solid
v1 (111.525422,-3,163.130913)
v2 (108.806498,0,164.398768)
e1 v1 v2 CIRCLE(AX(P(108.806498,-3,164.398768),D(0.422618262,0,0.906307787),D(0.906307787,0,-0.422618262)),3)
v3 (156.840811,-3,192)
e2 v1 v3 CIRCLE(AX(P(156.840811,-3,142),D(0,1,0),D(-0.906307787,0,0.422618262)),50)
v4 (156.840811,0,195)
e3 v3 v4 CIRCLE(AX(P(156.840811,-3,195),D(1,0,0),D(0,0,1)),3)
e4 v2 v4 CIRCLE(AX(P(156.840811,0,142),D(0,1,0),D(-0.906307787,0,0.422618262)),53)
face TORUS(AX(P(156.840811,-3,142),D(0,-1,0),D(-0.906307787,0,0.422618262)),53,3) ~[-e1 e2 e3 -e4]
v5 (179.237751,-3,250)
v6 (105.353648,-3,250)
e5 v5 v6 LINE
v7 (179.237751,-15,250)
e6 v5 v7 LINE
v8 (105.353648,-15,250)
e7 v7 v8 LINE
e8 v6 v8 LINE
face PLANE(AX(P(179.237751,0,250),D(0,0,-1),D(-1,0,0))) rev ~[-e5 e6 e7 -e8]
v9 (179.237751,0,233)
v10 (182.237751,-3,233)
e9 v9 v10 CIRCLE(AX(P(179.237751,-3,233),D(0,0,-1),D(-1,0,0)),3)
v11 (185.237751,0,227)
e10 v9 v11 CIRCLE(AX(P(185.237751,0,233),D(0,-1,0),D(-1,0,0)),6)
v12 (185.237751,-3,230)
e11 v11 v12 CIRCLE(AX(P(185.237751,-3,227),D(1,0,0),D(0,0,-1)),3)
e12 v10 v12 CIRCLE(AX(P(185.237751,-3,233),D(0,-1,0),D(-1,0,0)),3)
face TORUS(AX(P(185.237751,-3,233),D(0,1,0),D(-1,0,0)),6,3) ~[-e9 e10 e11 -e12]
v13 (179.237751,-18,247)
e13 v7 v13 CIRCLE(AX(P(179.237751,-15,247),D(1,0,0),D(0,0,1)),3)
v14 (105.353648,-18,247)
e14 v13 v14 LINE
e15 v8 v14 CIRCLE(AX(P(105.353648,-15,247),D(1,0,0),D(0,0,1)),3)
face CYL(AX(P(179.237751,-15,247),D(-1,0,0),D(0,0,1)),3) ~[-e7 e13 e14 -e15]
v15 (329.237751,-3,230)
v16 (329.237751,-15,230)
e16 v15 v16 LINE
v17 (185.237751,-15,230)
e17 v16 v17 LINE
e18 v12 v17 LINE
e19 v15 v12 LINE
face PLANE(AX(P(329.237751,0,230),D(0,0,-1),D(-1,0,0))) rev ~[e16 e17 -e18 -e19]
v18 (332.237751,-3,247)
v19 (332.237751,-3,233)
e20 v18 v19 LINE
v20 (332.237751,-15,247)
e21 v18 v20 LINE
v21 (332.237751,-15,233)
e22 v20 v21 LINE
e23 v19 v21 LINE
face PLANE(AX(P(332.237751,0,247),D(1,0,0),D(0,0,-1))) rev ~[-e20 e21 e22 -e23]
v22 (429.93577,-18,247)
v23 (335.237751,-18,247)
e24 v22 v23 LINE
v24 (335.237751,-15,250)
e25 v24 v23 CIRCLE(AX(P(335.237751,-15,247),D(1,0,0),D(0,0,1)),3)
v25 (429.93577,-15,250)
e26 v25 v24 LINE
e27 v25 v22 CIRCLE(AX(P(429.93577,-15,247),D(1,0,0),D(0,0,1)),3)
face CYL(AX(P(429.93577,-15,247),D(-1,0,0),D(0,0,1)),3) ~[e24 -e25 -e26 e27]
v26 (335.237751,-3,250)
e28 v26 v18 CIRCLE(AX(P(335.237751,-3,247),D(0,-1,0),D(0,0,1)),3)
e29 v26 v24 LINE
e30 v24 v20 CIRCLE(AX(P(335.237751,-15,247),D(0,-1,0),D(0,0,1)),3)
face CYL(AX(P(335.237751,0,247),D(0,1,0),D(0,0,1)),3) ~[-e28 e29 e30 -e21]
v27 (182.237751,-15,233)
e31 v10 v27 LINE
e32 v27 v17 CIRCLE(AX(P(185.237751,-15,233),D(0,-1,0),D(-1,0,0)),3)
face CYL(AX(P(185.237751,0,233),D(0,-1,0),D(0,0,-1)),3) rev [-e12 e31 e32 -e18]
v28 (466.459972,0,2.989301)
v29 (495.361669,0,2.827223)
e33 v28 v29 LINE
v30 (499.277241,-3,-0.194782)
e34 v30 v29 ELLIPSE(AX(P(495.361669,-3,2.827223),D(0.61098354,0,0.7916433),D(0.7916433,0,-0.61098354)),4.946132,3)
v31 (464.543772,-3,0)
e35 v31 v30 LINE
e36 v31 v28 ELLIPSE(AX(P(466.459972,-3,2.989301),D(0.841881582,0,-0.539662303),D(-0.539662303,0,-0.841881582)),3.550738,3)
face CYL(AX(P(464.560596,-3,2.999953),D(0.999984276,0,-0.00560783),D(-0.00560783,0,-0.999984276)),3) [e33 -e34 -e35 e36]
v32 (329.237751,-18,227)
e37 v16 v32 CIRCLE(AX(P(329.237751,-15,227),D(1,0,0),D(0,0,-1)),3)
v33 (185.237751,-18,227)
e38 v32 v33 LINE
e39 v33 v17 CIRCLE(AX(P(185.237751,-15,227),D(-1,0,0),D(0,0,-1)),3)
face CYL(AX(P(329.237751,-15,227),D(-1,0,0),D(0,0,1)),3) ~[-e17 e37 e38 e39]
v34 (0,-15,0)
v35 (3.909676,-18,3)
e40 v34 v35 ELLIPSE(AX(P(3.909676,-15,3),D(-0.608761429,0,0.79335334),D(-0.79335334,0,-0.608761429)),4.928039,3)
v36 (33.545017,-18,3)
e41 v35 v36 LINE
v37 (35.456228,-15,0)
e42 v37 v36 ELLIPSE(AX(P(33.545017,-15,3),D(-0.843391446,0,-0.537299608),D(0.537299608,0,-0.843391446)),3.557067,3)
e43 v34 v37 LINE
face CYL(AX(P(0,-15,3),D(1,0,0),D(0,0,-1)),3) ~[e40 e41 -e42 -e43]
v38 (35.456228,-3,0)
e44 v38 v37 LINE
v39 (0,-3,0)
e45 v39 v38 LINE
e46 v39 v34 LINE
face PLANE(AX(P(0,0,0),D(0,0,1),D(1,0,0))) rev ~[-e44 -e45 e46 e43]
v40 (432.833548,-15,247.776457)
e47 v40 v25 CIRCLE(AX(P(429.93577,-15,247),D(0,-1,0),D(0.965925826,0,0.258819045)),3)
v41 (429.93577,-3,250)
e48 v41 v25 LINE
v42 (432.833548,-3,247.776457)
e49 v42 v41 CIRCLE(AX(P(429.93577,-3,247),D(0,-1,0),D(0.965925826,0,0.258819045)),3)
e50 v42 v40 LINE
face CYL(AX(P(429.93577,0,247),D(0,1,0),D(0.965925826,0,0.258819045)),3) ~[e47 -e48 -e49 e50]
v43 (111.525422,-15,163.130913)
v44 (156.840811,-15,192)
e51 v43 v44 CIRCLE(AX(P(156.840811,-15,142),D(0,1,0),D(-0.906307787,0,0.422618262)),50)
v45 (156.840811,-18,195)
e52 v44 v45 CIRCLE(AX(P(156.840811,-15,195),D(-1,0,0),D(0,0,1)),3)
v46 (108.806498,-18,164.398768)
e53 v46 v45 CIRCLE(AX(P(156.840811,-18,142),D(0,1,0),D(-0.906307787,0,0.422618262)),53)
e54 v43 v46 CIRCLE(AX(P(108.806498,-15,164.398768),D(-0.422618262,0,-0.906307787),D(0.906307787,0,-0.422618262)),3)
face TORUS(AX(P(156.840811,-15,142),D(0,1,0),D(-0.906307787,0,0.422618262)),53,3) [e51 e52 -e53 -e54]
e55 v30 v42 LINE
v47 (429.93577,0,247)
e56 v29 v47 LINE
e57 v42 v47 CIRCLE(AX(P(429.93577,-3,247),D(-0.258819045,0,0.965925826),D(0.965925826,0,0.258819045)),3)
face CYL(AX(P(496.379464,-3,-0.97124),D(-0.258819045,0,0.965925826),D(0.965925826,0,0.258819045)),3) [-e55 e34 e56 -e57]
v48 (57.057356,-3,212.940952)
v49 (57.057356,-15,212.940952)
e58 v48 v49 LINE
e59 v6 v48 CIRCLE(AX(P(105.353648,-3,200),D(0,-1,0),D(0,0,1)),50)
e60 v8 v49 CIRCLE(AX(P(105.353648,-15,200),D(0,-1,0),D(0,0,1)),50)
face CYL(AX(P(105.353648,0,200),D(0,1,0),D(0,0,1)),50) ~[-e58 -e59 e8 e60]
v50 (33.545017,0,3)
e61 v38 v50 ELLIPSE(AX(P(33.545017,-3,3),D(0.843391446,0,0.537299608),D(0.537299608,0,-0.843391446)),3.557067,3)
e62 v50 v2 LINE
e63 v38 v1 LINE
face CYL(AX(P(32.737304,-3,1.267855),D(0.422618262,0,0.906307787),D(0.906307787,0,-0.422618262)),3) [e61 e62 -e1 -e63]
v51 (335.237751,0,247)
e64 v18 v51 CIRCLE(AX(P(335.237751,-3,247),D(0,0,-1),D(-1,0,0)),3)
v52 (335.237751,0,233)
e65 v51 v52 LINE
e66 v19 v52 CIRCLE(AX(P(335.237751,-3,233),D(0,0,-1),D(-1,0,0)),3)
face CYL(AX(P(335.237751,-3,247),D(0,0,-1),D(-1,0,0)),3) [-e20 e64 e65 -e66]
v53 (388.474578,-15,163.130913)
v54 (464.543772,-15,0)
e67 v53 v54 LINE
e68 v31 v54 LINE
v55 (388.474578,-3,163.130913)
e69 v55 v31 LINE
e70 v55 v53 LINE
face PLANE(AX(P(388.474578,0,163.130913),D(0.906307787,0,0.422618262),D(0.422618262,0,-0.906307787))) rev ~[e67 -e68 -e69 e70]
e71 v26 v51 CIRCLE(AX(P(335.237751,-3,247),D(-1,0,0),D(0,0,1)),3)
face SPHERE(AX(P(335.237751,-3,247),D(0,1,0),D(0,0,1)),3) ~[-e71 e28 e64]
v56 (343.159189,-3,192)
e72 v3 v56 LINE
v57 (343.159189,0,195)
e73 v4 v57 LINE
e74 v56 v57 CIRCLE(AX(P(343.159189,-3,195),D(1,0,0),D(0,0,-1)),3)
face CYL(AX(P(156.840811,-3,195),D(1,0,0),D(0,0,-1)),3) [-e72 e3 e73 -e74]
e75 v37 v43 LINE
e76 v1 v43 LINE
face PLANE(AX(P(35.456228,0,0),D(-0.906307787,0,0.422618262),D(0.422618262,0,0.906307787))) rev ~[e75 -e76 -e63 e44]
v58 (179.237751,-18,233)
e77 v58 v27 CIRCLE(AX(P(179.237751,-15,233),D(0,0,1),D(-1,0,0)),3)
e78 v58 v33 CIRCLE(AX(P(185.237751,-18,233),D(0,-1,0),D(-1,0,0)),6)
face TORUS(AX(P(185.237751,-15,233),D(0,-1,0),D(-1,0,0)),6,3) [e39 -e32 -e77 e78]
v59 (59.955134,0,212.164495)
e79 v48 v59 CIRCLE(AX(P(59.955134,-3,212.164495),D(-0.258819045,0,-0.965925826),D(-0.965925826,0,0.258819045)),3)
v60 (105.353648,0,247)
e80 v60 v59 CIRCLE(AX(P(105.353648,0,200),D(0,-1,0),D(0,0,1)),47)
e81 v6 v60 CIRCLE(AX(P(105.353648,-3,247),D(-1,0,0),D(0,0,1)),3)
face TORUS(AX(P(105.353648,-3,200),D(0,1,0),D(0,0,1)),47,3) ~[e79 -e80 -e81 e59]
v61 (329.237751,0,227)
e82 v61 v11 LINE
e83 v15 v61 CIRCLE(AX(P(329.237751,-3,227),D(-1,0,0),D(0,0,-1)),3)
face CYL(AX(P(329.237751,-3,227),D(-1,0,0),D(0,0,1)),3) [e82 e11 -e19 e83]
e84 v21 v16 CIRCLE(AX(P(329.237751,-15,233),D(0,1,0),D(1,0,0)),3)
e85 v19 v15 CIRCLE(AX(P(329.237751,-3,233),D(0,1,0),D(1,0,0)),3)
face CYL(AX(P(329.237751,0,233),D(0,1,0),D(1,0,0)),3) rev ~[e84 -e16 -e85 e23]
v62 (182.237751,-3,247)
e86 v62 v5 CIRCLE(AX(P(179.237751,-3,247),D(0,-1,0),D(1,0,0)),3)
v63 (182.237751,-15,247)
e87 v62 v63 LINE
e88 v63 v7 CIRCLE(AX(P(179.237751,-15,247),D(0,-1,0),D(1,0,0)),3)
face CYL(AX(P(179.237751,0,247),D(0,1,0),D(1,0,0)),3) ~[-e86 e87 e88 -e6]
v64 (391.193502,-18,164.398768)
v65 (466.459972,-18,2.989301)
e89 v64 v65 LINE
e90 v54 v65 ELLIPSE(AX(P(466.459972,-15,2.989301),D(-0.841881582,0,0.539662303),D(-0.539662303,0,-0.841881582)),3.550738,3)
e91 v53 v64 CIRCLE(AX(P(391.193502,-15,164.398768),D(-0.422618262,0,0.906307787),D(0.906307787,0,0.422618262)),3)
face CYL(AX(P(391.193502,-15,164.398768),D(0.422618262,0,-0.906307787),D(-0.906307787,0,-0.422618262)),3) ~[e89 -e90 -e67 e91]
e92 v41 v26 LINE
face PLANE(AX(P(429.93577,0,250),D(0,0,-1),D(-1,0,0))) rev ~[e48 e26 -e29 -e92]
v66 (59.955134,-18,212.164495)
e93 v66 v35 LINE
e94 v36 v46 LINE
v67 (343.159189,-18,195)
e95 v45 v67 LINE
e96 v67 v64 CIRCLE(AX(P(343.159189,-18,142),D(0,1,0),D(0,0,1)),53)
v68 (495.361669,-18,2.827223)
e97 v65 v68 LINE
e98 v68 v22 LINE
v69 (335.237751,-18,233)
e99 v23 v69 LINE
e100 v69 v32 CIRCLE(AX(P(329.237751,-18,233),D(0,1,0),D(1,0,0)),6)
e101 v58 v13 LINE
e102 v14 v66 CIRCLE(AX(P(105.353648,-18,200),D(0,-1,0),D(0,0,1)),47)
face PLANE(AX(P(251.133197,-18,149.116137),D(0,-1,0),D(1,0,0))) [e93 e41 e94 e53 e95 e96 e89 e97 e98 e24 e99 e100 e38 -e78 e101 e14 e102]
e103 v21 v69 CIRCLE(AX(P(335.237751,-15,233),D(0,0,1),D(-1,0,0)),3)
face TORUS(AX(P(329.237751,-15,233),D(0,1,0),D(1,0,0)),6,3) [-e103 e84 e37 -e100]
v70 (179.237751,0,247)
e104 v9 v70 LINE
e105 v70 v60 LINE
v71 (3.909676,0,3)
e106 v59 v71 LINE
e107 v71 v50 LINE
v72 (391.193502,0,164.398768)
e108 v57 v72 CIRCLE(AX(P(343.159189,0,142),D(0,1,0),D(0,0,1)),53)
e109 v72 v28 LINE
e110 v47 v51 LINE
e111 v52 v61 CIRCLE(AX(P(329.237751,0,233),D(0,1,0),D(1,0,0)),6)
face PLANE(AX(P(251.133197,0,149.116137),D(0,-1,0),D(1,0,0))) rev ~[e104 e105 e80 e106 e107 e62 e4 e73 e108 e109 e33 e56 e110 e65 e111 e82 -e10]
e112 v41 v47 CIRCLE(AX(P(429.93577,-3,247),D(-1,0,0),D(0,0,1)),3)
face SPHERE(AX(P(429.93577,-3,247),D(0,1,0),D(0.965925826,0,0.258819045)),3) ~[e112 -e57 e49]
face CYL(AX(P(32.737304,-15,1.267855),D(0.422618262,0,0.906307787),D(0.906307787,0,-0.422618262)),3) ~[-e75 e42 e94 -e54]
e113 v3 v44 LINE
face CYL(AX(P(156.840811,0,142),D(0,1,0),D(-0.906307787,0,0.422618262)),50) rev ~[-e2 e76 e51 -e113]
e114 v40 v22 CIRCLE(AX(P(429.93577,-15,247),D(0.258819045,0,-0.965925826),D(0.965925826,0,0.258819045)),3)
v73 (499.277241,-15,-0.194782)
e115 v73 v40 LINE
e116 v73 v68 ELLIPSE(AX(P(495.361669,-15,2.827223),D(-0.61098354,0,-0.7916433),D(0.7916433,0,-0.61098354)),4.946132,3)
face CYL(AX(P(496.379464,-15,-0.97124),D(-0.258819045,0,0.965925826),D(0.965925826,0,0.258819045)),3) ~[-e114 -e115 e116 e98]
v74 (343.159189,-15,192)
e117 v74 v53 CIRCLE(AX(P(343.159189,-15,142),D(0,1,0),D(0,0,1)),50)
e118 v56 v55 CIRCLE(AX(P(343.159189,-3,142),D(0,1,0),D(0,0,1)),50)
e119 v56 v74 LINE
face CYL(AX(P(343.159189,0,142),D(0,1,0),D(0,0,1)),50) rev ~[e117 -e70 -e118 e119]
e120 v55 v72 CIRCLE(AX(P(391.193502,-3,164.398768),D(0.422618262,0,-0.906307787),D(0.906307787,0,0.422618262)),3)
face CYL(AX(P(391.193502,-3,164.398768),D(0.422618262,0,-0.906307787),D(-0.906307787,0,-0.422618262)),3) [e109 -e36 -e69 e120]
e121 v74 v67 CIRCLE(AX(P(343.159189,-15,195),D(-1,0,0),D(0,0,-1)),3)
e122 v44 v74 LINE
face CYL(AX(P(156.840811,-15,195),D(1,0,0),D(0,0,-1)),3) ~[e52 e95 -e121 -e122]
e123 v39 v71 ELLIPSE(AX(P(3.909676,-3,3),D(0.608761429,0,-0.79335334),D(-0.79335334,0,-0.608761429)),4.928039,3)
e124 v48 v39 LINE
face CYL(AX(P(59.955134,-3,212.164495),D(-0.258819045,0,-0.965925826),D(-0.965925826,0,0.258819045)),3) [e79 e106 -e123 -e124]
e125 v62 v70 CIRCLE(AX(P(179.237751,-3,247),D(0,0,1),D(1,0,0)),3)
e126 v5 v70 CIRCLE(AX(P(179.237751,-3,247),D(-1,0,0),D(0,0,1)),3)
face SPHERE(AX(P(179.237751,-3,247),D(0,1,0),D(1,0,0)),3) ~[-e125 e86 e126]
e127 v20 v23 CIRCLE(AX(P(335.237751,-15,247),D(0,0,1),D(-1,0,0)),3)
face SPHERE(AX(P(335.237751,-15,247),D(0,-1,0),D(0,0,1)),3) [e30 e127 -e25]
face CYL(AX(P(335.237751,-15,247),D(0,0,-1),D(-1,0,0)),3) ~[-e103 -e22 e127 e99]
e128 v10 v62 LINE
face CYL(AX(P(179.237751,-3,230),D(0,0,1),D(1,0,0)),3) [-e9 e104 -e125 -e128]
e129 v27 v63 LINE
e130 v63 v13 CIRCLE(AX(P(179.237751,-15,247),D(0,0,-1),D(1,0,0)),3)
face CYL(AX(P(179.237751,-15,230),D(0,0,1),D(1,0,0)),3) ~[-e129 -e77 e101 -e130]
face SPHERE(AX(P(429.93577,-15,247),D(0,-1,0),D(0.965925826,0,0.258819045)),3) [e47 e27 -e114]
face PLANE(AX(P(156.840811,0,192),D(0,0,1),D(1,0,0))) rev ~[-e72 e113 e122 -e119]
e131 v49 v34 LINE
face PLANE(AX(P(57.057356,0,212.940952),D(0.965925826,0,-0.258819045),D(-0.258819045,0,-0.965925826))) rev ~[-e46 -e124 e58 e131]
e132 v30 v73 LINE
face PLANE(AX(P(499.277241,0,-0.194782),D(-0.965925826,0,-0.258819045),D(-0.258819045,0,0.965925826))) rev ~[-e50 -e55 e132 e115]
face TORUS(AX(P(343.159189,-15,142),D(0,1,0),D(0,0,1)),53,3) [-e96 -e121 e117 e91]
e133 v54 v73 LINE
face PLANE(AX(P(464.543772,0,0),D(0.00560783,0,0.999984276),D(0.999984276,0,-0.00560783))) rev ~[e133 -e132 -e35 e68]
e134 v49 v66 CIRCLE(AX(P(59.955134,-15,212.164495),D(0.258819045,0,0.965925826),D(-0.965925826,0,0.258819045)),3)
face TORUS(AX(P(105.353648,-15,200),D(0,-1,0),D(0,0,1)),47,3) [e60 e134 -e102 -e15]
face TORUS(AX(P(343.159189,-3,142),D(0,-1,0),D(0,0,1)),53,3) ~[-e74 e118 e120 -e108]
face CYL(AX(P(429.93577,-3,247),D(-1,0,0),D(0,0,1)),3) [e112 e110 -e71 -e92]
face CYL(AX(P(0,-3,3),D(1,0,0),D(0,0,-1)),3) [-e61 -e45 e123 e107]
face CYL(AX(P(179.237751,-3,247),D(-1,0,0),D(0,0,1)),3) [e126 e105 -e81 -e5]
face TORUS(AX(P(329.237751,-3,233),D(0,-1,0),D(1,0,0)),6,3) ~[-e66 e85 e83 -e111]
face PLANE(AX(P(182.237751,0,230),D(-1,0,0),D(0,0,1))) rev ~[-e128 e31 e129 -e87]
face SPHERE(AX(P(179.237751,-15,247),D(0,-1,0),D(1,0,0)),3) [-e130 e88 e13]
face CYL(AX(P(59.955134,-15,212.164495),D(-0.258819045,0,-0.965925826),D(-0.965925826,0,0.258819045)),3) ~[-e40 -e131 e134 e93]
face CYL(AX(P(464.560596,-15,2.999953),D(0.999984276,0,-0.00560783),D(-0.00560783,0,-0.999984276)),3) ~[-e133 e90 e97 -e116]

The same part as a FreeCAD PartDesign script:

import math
import FreeCAD as App
import Part
import Sketcher
Q = App.Units.Quantity


def edges_at(feature, points):
    """Names of the edges that pass closest to the given points."""
    edges = feature.Shape.Edges
    near = lambda p: min(range(len(edges)), key=lambda i: edges[i].distToShape(Part.Vertex(*p))[0])
    return sorted({f"Edge{near(p) + 1}" for p in points})

doc = App.newDocument("Part")
body = doc.addObject("PartDesign::Body", "Body")

sketch1 = body.newObject("Sketcher::SketchObject", "Sketch")
sketch1.AttachmentSupport = (doc.getObject("XZ_Plane"), [""])
sketch1.MapMode = "FlatFace"
sketch1.addGeometry([
    Part.LineSegment(App.Vector(57.1, 212.9, 0), App.Vector(0, 0, 0)),
    Part.LineSegment(App.Vector(0, 0, 0), App.Vector(35.5, 0, 0)),
    Part.LineSegment(App.Vector(35.5, 0, 0), App.Vector(111.5, 163.1, 0)),
    Part.ArcOfCircle(Part.Circle(App.Vector(156.8, 142, 0), App.Vector(0, 0, 1), 50), math.radians(90), math.radians(155)),
    Part.LineSegment(App.Vector(156.8, 192, 0), App.Vector(343.2, 192, 0)),
    Part.ArcOfCircle(Part.Circle(App.Vector(343.2, 142, 0), App.Vector(0, 0, 1), 50), math.radians(25), math.radians(90)),
    Part.LineSegment(App.Vector(388.5, 163.1, 0), App.Vector(464.5, 0, 0)),
    Part.LineSegment(App.Vector(464.5, 0, 0), App.Vector(499.3, -0.2, 0)),
    Part.LineSegment(App.Vector(499.3, -0.2, 0), App.Vector(432.8, 247.8, 0)),
    Part.ArcOfCircle(Part.Circle(App.Vector(429.9, 247, 0), App.Vector(0, 0, 1), 3), math.radians(15), math.radians(90)),
    Part.LineSegment(App.Vector(429.9, 250, 0), App.Vector(335.2, 250, 0)),
    Part.ArcOfCircle(Part.Circle(App.Vector(335.2, 247, 0), App.Vector(0, 0, 1), 3), math.radians(90), math.radians(180)),
    Part.LineSegment(App.Vector(332.2, 247, 0), App.Vector(332.2, 233, 0)),
    Part.ArcOfCircle(Part.Circle(App.Vector(329.2, 233, 0), App.Vector(0, 0, 1), 3), math.radians(-90), math.radians(0)),
    Part.LineSegment(App.Vector(329.2, 230, 0), App.Vector(182.2, 230, 0)),
    Part.LineSegment(App.Vector(182.2, 230, 0), App.Vector(182.2, 247, 0)),
    Part.ArcOfCircle(Part.Circle(App.Vector(179.2, 247, 0), App.Vector(0, 0, 1), 3), math.radians(0), math.radians(90)),
    Part.LineSegment(App.Vector(179.2, 250, 0), App.Vector(105.4, 250, 0)),
    Part.ArcOfCircle(Part.Circle(App.Vector(105.4, 200, 0), App.Vector(0, 0, 1), 50), math.radians(90), math.radians(165)),
], False)
sketch1.addConstraint([
    Sketcher.Constraint("Coincident", 0, 2, 1, 1),
    Sketcher.Constraint("Coincident", 1, 2, 2, 1),
    Sketcher.Constraint("Tangent", 2, 2, 3, 2),
    Sketcher.Constraint("Tangent", 3, 1, 4, 1),
    Sketcher.Constraint("Tangent", 4, 2, 5, 2),
    Sketcher.Constraint("Tangent", 5, 1, 6, 1),
    Sketcher.Constraint("Coincident", 6, 2, 7, 1),
    Sketcher.Constraint("Coincident", 7, 2, 8, 1),
    Sketcher.Constraint("Tangent", 8, 2, 9, 1),
    Sketcher.Constraint("Tangent", 9, 2, 10, 1),
    Sketcher.Constraint("Tangent", 10, 2, 11, 1),
    Sketcher.Constraint("Tangent", 11, 2, 12, 1),
    Sketcher.Constraint("Tangent", 12, 2, 13, 2),
    Sketcher.Constraint("Tangent", 13, 1, 14, 1),
    Sketcher.Constraint("Coincident", 14, 2, 15, 1),
    Sketcher.Constraint("Tangent", 15, 2, 16, 1),
    Sketcher.Constraint("Tangent", 16, 2, 17, 1),
    Sketcher.Constraint("Tangent", 17, 2, 18, 1),
    Sketcher.Constraint("Tangent", 18, 2, 0, 1),
    Sketcher.Constraint("Horizontal", 1),
    Sketcher.Constraint("Horizontal", 4),
    Sketcher.Constraint("Horizontal", 10),
    Sketcher.Constraint("Vertical", 12),
    Sketcher.Constraint("Horizontal", 14),
    Sketcher.Constraint("Vertical", 15),
    Sketcher.Constraint("Horizontal", 17),
    Sketcher.Constraint("Coincident", 0, 2, -1, 1),
    Sketcher.Constraint("Equal", 3, 5),
    Sketcher.Constraint("Equal", 9, 11),
    Sketcher.Constraint("Equal", 11, 13),
    Sketcher.Constraint("Equal", 13, 16),
    Sketcher.Constraint("Equal", 5, 18),
    Sketcher.Constraint("PointOnObject", 6, 2, -1),
    Sketcher.Constraint("Horizontal", 11, 3, 16, 3),
    Sketcher.Constraint("Horizontal", 2, 2, 5, 1),
    Sketcher.Constraint("Radius", 3, 50.0),
    Sketcher.Constraint("Radius", 9, 3.0),
    Sketcher.Constraint("DistanceX", 14, 2, 14, 1, 147.0),
    Sketcher.Constraint("DistanceY", 12, 2, 12, 1, 14.0),
    Sketcher.Constraint("Angle", 0, Q("-105 deg")),
    Sketcher.Constraint("Angle", 2, Q("65 deg")),
    Sketcher.Constraint("Angle", 8, Q("105 deg")),
    Sketcher.Constraint("DistanceY", -1, 1, 3, 3, 142.0),
    Sketcher.Constraint("DistanceY", -1, 1, 9, 3, 247.0),
    Sketcher.Constraint("DistanceX", 10, 2, 10, 1, 94.698019),
    Sketcher.Constraint("DistanceX", 1, 1, 1, 2, 35.456228),
    Sketcher.Constraint("DistanceX", 4, 1, 4, 2, 186.318378),
    Sketcher.Constraint("DistanceX", 17, 2, 17, 1, 73.884104),
    Sketcher.Constraint("DistanceX", -1, 1, 7, 2, 499.277241),
])
pad1 = body.newObject("PartDesign::Pad", "Pad")
pad1.Profile = sketch1
pad1.Length = 18
doc.recompute()

fillet = body.newObject("PartDesign::Fillet", "Fillet")
fillet.Base = (pad1, edges_at(pad1, [
    (28.529, -18, 106.47),
    (17.728, -18, 0),
    (73.491, -18, 81.565),
    (129.976, -18, 184.17),
    (250, -18, 192),
    (370.024, -18, 184.17),
    (426.509, -18, 81.565),
    (481.911, -18, -0.097),
    (466.055, -18, 123.791),
    (431.762, -18, 249.38),
    (382.587, -18, 250),
    (333.116, -18, 249.121),
    (332.238, -18, 240),
    (331.359, -18, 230.879),
    (255.738, -18, 230),
    (182.238, -18, 238.5),
    (181.359, -18, 249.121),
    (142.296, -18, 250),
    (74.916, -18, 239.668),
    (28.529, 0, 106.47),
    (17.728, 0, 0),
    (73.491, 0, 81.565),
    (129.976, 0, 184.17),
    (250, 0, 192),
    (370.024, 0, 184.17),
    (426.509, 0, 81.565),
    (481.911, 0, -0.097),
    (466.055, 0, 123.791),
    (431.762, 0, 249.38),
    (382.587, 0, 250),
    (333.116, 0, 249.121),
    (332.238, 0, 240),
    (331.359, 0, 230.879),
    (255.738, 0, 230),
    (182.238, 0, 238.5),
    (181.359, 0, 249.121),
    (142.296, 0, 250),
    (74.916, 0, 239.668),
    (182.238, -9, 230),
]))
fillet.Radius = 3

doc.recompute()
